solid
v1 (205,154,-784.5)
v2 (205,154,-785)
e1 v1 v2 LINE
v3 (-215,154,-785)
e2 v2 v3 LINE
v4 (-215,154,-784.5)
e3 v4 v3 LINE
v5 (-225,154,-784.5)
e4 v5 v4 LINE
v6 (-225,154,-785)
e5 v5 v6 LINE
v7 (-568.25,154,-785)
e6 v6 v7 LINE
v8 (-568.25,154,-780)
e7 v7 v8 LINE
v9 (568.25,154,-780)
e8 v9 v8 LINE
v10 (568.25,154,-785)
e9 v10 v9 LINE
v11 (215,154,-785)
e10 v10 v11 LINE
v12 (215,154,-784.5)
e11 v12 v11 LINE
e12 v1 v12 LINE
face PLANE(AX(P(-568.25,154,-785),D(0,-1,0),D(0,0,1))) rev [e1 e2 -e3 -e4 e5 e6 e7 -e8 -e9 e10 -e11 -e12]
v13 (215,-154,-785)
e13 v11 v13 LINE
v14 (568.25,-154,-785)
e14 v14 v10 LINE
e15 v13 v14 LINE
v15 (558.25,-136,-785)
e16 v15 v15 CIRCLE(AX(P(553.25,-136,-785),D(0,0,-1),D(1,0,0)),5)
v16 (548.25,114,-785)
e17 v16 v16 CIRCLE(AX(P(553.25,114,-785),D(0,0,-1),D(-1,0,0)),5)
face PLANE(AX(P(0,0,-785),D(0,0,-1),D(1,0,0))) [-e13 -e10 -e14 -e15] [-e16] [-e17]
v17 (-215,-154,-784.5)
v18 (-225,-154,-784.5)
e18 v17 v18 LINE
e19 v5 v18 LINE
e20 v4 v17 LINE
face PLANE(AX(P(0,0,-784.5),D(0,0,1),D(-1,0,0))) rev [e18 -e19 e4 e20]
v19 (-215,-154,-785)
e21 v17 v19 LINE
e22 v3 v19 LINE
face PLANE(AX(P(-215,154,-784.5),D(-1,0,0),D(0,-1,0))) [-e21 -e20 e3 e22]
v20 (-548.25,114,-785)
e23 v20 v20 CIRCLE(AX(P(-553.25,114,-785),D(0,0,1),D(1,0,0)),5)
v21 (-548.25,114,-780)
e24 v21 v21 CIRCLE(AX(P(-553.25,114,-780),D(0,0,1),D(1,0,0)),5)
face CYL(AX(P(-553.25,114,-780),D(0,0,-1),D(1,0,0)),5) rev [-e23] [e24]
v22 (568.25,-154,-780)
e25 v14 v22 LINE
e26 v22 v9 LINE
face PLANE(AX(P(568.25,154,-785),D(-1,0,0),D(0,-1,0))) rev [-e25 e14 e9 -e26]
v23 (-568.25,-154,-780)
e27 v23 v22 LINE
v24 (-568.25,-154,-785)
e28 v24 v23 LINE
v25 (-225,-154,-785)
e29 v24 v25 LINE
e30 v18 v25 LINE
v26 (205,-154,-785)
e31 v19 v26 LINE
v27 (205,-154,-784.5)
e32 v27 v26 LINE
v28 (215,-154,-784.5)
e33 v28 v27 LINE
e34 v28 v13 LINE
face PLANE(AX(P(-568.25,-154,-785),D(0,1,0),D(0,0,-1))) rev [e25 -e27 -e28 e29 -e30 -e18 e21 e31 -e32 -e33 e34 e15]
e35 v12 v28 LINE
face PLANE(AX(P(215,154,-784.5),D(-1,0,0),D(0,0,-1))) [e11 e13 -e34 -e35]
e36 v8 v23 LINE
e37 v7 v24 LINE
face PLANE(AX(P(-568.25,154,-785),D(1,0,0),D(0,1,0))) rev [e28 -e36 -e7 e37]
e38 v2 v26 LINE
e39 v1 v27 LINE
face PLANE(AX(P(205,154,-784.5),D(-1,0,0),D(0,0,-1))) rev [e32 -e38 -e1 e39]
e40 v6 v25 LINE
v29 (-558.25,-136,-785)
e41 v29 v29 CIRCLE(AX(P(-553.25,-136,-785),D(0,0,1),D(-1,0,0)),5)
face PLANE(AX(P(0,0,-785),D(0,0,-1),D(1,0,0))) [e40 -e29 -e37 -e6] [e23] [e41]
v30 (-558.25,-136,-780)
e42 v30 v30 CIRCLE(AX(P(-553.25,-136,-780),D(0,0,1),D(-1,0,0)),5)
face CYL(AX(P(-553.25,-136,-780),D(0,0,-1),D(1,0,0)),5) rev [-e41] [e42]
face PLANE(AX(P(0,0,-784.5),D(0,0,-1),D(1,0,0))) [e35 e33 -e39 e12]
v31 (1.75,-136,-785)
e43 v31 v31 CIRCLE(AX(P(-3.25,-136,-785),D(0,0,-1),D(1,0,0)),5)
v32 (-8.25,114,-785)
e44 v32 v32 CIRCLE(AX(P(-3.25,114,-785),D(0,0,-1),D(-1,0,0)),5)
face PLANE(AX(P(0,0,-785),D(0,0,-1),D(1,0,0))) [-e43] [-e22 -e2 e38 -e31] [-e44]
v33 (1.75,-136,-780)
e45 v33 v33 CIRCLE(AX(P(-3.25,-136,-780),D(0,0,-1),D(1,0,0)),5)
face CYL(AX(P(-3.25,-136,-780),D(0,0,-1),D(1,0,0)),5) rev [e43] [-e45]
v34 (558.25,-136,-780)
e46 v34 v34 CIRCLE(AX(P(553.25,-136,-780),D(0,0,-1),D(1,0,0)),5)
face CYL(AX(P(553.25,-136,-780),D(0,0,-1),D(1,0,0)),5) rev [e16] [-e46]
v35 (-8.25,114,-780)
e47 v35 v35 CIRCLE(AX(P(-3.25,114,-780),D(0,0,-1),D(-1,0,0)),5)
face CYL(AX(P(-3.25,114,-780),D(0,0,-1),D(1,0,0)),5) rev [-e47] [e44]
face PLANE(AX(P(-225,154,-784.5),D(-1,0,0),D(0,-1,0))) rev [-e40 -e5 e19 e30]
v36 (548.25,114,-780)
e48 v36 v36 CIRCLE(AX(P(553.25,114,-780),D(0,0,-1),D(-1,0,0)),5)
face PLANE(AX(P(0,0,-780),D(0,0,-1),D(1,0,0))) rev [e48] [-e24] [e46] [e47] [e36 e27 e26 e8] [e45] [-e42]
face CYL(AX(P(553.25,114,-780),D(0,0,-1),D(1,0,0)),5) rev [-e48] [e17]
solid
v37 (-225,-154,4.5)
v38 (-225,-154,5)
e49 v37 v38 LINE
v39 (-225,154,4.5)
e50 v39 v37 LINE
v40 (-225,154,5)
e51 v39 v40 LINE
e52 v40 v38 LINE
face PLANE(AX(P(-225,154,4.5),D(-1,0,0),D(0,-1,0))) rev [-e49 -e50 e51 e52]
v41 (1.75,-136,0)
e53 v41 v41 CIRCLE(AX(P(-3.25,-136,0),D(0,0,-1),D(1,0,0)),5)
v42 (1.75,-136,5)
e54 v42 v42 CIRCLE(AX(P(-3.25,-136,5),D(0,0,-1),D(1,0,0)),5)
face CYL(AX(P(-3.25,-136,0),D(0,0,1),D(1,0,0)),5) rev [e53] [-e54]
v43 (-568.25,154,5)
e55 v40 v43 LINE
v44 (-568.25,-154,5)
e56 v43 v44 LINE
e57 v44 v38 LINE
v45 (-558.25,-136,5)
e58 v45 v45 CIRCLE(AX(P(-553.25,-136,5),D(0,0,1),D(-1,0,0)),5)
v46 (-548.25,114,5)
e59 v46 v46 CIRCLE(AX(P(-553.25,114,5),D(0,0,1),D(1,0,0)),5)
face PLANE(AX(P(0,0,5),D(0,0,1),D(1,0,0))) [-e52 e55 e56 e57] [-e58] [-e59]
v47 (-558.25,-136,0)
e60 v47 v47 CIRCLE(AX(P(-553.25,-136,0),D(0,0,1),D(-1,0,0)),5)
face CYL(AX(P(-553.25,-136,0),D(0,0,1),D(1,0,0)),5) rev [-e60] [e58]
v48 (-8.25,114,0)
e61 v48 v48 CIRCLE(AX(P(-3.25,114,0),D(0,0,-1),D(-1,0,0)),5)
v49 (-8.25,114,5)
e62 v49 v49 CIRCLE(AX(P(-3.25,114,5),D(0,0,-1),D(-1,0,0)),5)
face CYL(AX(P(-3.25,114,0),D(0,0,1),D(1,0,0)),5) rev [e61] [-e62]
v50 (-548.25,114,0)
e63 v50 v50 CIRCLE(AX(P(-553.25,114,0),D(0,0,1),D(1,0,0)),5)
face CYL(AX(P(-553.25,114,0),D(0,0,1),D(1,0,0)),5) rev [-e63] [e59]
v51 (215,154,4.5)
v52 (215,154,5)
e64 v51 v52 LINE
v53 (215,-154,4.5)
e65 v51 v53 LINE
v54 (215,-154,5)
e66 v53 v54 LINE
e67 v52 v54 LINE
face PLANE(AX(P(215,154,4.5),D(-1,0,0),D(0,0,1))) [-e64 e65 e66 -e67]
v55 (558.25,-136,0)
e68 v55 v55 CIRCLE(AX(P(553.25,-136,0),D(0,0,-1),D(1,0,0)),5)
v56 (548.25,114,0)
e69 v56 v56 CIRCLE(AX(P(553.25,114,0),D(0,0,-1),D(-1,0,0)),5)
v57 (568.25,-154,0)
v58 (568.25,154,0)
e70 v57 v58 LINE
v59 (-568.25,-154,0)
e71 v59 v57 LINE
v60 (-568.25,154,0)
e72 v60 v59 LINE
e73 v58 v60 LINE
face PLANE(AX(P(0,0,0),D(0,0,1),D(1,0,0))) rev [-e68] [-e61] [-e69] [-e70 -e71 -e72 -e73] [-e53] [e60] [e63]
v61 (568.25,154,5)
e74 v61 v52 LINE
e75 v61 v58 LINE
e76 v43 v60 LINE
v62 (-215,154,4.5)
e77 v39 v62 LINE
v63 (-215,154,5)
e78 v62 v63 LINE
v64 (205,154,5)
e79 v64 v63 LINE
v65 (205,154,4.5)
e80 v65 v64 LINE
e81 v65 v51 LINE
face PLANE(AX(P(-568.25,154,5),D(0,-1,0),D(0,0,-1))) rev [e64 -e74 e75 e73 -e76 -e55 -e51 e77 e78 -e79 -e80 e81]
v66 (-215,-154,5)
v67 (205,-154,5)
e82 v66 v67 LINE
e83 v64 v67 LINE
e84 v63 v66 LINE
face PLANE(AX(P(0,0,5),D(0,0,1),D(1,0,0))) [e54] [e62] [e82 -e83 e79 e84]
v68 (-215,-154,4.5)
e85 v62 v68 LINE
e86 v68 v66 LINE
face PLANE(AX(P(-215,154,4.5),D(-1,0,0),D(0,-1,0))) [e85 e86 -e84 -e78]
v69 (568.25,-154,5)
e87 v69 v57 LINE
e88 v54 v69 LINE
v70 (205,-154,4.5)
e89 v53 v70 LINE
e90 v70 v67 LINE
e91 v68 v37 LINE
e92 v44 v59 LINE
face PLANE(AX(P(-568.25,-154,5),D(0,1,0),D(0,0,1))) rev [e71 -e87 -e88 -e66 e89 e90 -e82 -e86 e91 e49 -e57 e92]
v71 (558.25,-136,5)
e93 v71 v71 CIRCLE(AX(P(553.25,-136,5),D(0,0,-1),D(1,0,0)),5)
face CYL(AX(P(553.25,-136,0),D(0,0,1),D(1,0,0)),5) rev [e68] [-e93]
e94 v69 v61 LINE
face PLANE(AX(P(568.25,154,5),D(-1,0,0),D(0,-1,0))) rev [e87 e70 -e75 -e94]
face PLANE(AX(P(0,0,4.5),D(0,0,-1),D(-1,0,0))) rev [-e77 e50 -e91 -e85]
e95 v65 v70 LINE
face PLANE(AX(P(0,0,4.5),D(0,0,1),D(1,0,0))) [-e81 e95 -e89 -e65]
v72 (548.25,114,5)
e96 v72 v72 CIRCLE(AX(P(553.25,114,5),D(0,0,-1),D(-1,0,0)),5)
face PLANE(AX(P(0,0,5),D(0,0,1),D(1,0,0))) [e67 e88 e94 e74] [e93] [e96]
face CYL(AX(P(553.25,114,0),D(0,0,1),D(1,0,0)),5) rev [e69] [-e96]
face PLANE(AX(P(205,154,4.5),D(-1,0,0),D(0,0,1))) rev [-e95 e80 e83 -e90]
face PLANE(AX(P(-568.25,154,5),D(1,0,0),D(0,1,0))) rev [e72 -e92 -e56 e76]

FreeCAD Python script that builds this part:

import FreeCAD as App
import Part
import Sketcher
Q = App.Units.Quantity


def add_polygon(sketch, points):
    """Adds a closed chain of lines whose ends are joined by coincident constraints."""
    first, n = sketch.GeometryCount, len(points)
    for a, b in zip(points, points[1:] + points[:1]):
        sketch.addGeometry(Part.LineSegment(App.Vector(*a, 0), App.Vector(*b, 0)), False)
    for i in range(n):
        sketch.addConstraint(Sketcher.Constraint("Coincident", first + i, 2, first + (i + 1) % n, 1))

doc = App.newDocument("Part")
body = doc.addObject("PartDesign::Body", "Body")

sketch1 = body.newObject("Sketcher::SketchObject", "Sketch")
sketch1.AttachmentSupport = (doc.getObject("XY_Plane"), [""])
sketch1.MapMode = "FlatFace"
add_polygon(sketch1, [(-568, 154), (-568, -154), (568, -154), (568, 154)])
sketch1.addConstraint(Sketcher.Constraint("Vertical", 0))
sketch1.addConstraint(Sketcher.Constraint("Horizontal", 1))
sketch1.addConstraint(Sketcher.Constraint("Vertical", 2))
sketch1.addConstraint(Sketcher.Constraint("Horizontal", 3))
sketch1.addConstraint(Sketcher.Constraint("Symmetric", 0, 2, 2, 2, -1, 1))
sketch1.addConstraint(Sketcher.Constraint("DistanceY", 0, 2, 0, 1, Q("308 mm")))
sketch1.addConstraint(Sketcher.Constraint("DistanceX", 1, 1, 1, 2, Q("1136.5 mm")))
pad1 = body.newObject("PartDesign::Pad", "Pad")
pad1.Profile = sketch1
pad1.Length = 5

sketch2 = body.newObject("Sketcher::SketchObject", "Sketch001")
sketch2.AttachmentSupport = (doc.getObject("XY_Plane"), [""])
sketch2.MapMode = "FlatFace"
sketch2.AttachmentOffset = App.Placement(App.Vector(0, 0, 5), App.Rotation())
add_polygon(sketch2, [(-225, 154), (-225, -154), (-215, -154), (-215, 154)])
add_polygon(sketch2, [(205, 154), (205, -154), (215, -154), (215, 154)])
sketch2.addConstraint(Sketcher.Constraint("Vertical", 0))
sketch2.addConstraint(Sketcher.Constraint("Horizontal", 1))
sketch2.addConstraint(Sketcher.Constraint("Vertical", 2))
sketch2.addConstraint(Sketcher.Constraint("Horizontal", 3))
sketch2.addConstraint(Sketcher.Constraint("Vertical", 4))
sketch2.addConstraint(Sketcher.Constraint("Horizontal", 5))
sketch2.addConstraint(Sketcher.Constraint("Vertical", 6))
sketch2.addConstraint(Sketcher.Constraint("Horizontal", 7))
sketch2.addConstraint(Sketcher.Constraint("Symmetric", 2, 2, 5, 2, -1, 1))
sketch2.addConstraint(Sketcher.Constraint("Horizontal", 1, 2, 4, 2))
sketch2.addConstraint(Sketcher.Constraint("Horizontal", 3, 2, 6, 2))
sketch2.addConstraint(Sketcher.Constraint("Equal", 3, 5))
sketch2.addConstraint(Sketcher.Constraint("DistanceX", 1, 1, 1, 2, Q("10 mm")))
sketch2.addConstraint(Sketcher.Constraint("DistanceY", 0, 2, 0, 1, Q("308 mm")))
sketch2.addConstraint(Sketcher.Constraint("DistanceX", 0, 2, -1, 1, Q("225 mm")))
pocket1 = body.newObject("PartDesign::Pocket", "Pocket")
pocket1.Profile = sketch2
pocket1.Length = 0.5

sketch3 = body.newObject("Sketcher::SketchObject", "Sketch002")
sketch3.AttachmentSupport = (doc.getObject("XY_Plane"), [""])
sketch3.MapMode = "FlatFace"
sketch3.AttachmentOffset = App.Placement(App.Vector(0, 0, 5), App.Rotation())
sketch3.addGeometry(Part.Circle(App.Vector(-553, 114, 0), App.Vector(0, 0, 1), 5), False)
sketch3.addGeometry(Part.Circle(App.Vector(-553, -136, 0), App.Vector(0, 0, 1), 5), False)
sketch3.addConstraint(Sketcher.Constraint("Equal", 0, 1))
sketch3.addConstraint(Sketcher.Constraint("Vertical", 0, 3, 1, 3))
sketch3.addConstraint(Sketcher.Constraint("Diameter", 0, Q("10 mm")))
sketch3.addConstraint(Sketcher.Constraint("DistanceY", -1, 1, 0, 3, Q("114 mm")))
sketch3.addConstraint(Sketcher.Constraint("DistanceY", 1, 3, -1, 1, Q("136 mm")))
sketch3.addConstraint(Sketcher.Constraint("DistanceX", 0, 3, -1, 1, Q("553.25 mm")))
pocket2 = body.newObject("PartDesign::Pocket", "Pocket001")
pocket2.Profile = sketch3
pocket2.Type = "ThroughAll"
doc.recompute()

datumplane = body.newObject("PartDesign::Plane", "DatumPlane")
datumplane.AttachmentSupport = (doc.getObject("YZ_Plane"), [""])
datumplane.MapMode = "FlatFace"
datumplane.AttachmentOffset = App.Placement(App.Vector(0, 0, -278.25), App.Rotation())
mirrored = body.newObject("PartDesign::Mirrored", "Mirrored")
mirrored.Originals = [pocket2]
mirrored.MirrorPlane = (datumplane, [""])
body.Tip = mirrored
doc.recompute()

mirrored2 = body.newObject("PartDesign::Mirrored", "Mirrored001")
mirrored2.Originals = [pocket2]
mirrored2.MirrorPlane = (doc.getObject("YZ_Plane"), [""])
body.Tip = mirrored2
body2 = doc.addObject("PartDesign::Body", "Body001")
doc.recompute()

mirroring = doc.addObject("Part::Mirroring", "Mirroring")
mirroring.Source = body
mirroring.Base = App.Vector(0, 0, -390)
mirroring.Normal = App.Vector(0, 0, -1)
body2.BaseFeature = mirroring
doc.recompute()
mirroring.Visibility = False

doc.recompute()
